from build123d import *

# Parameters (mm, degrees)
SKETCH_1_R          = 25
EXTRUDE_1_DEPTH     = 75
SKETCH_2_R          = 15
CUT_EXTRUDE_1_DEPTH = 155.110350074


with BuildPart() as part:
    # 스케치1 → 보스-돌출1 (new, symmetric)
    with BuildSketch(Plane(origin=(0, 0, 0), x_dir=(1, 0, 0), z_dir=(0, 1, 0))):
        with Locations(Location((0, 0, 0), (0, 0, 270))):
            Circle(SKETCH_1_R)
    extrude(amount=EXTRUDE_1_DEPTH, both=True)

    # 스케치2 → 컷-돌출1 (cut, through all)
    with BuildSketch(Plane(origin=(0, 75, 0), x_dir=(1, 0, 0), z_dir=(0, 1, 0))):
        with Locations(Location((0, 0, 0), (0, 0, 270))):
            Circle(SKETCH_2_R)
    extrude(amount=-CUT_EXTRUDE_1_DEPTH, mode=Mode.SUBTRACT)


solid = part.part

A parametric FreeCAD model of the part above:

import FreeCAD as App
import Part
import Sketcher
Q = App.Units.Quantity

doc = App.newDocument("Part")
params = doc.addObject("Spreadsheet::Sheet", "Params")
for row, (alias, value) in enumerate([
    ("sketch1_diameter", "50 mm"),
    ("pad1_length", "150 mm"),
    ("sketch2_diameter", "30 mm"),
], start=1):
    params.set(f"A{row}", alias)
    params.set(f"B{row}", "=" + value)
    params.setAlias(f"B{row}", alias)

body = doc.addObject("PartDesign::Body", "Body")

# Sketch on XZ plane
sketch1 = body.newObject("Sketcher::SketchObject", "Sketch")
sketch1.AttachmentSupport = (doc.getObject("XZ_Plane"), [""])
sketch1.MapMode = "FlatFace"
sketch1.addGeometry(Part.Circle(App.Vector(0, 0, 0), App.Vector(0, 0, 1), 25), False)
sketch1.addConstraint([
    Sketcher.Constraint("Coincident", 0, 3, -1, 1),
    Sketcher.Constraint("Diameter", 0, Q("50 mm")),
])
sketch1.setExpression("Constraints[1]", "Params.sketch1_diameter")
pad1 = body.newObject("PartDesign::Pad", "Pad")
pad1.Profile = sketch1
pad1.setExpression("Length", "Params.pad1_length")
pad1.Midplane = True

# Sketch on XZ plane
sketch2 = body.newObject("Sketcher::SketchObject", "Sketch001")
sketch2.AttachmentSupport = (doc.getObject("XZ_Plane"), [""])
sketch2.MapMode = "FlatFace"
sketch2.AttachmentOffset = App.Placement(App.Vector(0, 0, -75), App.Rotation())
sketch2.addGeometry(Part.Circle(App.Vector(0, 0, 0), App.Vector(0, 0, 1), 15), False)
sketch2.addConstraint([
    Sketcher.Constraint("Coincident", 0, 3, -1, 1),
    Sketcher.Constraint("Diameter", 0, Q("30 mm")),
])
sketch2.setExpression("Constraints[1]", "Params.sketch2_diameter")
pocket1 = body.newObject("PartDesign::Pocket", "Pocket")
pocket1.Profile = sketch2
pocket1.Type = "ThroughAll"
pocket1.Reversed = True

doc.recompute()
